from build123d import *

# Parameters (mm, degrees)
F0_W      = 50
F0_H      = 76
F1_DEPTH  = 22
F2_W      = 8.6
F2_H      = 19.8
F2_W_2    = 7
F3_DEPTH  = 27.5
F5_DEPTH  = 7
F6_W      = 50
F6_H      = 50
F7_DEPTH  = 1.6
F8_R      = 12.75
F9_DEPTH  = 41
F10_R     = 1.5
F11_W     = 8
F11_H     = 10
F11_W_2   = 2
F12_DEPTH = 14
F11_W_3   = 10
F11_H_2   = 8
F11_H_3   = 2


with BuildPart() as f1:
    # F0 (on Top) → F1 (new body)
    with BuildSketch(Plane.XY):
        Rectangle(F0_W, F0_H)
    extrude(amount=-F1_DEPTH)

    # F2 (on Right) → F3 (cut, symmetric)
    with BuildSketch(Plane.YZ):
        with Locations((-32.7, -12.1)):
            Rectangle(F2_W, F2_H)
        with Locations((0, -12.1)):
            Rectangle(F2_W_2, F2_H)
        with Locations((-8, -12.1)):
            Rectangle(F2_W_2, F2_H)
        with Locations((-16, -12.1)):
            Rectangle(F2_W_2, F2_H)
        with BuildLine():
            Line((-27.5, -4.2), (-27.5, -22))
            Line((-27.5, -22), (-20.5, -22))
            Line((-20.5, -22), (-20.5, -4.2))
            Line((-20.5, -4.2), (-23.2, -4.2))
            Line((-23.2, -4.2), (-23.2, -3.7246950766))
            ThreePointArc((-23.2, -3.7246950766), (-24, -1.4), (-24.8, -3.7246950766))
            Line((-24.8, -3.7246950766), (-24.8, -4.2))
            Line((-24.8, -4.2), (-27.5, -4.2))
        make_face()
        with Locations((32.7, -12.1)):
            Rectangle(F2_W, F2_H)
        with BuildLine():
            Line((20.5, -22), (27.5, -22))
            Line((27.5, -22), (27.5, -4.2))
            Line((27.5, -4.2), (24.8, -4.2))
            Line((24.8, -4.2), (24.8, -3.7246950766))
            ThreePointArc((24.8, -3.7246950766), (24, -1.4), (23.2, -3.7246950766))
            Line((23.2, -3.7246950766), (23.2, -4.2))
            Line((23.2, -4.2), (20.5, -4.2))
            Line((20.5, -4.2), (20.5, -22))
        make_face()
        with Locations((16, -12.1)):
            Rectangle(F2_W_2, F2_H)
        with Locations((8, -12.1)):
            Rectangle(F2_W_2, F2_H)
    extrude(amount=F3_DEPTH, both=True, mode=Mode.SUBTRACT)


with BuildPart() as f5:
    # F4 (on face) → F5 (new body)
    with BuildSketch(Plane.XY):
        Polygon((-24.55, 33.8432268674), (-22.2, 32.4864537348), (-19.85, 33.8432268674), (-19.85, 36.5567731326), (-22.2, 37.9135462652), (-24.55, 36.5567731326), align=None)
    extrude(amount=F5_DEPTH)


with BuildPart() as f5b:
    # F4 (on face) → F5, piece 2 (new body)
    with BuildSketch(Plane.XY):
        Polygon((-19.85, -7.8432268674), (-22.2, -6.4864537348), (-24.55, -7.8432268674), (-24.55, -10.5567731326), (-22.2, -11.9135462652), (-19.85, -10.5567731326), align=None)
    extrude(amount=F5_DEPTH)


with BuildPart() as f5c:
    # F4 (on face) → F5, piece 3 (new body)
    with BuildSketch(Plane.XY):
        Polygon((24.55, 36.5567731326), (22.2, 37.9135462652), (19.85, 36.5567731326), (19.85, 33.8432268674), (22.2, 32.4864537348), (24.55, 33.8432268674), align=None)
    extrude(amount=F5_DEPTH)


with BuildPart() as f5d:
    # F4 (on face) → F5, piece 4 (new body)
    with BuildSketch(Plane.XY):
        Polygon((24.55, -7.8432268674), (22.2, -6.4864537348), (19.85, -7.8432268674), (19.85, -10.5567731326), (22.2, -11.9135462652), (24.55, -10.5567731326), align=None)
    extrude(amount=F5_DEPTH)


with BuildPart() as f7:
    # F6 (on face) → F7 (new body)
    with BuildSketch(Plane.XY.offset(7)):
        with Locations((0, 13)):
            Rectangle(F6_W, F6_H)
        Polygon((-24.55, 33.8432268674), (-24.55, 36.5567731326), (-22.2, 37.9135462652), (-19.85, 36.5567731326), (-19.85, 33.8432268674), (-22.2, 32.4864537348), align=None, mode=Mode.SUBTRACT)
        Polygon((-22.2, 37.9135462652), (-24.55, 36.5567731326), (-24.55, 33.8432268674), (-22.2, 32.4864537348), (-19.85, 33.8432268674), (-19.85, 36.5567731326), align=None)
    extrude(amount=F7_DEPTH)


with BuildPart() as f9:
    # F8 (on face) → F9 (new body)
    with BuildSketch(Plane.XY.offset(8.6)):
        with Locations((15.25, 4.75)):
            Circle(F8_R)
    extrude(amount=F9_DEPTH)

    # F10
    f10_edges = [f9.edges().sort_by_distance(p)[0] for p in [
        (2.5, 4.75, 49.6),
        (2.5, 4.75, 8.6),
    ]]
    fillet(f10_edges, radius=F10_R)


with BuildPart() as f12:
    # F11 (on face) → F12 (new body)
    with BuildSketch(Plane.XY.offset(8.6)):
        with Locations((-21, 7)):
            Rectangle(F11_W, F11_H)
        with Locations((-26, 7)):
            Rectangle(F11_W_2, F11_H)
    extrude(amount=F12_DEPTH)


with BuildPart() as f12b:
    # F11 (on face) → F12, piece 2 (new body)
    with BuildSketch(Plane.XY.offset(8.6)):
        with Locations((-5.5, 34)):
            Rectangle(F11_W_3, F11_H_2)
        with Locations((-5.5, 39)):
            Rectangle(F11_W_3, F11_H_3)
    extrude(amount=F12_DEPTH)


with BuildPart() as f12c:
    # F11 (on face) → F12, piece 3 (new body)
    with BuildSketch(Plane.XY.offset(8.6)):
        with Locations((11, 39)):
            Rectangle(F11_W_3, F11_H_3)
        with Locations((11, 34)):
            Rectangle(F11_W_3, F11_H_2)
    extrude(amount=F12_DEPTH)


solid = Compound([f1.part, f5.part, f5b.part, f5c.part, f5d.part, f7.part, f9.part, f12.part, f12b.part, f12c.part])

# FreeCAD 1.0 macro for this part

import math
import FreeCAD as App
import Part
import Sketcher
from FreeCAD import Vector
Q = App.Units.Quantity


def edges_at(feature, points):
    """Names of the edges that pass closest to the given points."""
    edges = feature.Shape.Edges
    near = lambda p: min(range(len(edges)), key=lambda i: edges[i].distToShape(Part.Vertex(*p))[0])
    return sorted({f"Edge{near(p) + 1}" for p in points})


def add_polygon(sketch, points):
    """Adds a closed chain of lines whose ends are joined by coincident constraints."""
    first, n = sketch.GeometryCount, len(points)
    for a, b in zip(points, points[1:] + points[:1]):
        sketch.addGeometry(Part.LineSegment(App.Vector(*a, 0), App.Vector(*b, 0)), False)
    for i in range(n):
        sketch.addConstraint(Sketcher.Constraint("Coincident", first + i, 2, first + (i + 1) % n, 1))

doc = App.newDocument("Part")
body = doc.addObject("PartDesign::Body", "Body")

# Sketch on XY plane
sketch1 = body.newObject("Sketcher::SketchObject", "Sketch")
sketch1.AttachmentSupport = (doc.getObject("XY_Plane"), [""])
sketch1.MapMode = "FlatFace"
add_polygon(sketch1, [(-25, 38), (-25, -38), (25, -38), (25, 38)])  # lines 0-3
sketch1.addConstraint([
    Sketcher.Constraint("Vertical", 0),
    Sketcher.Constraint("Horizontal", 1),
    Sketcher.Constraint("Vertical", 2),
    Sketcher.Constraint("Horizontal", 3),
    Sketcher.Constraint("Symmetric", 0, 2, 2, 2, -1, 1),
    Sketcher.Constraint("DistanceX", 1, 1, 1, 2, Q("50 mm")),
    Sketcher.Constraint("DistanceY", 0, 2, 0, 1, Q("76 mm")),
])
pad1 = body.newObject("PartDesign::Pad", "Pad")
pad1.Profile = sketch1
pad1.Length = 22
pad1.Reversed = True

# Sketch on YZ plane
sketch2 = body.newObject("Sketcher::SketchObject", "Sketch001")
sketch2.AttachmentSupport = (doc.getObject("YZ_Plane"), [""])
sketch2.MapMode = "FlatFace"
add_polygon(sketch2, [(-37, -2.2), (-37, -22), (-28.4, -22), (-28.4, -2.2)])  # lines 0-3
add_polygon(sketch2, [(-3.5, -2.2), (-3.5, -22), (3.5, -22), (3.5, -2.2)])  # lines 4-7
add_polygon(sketch2, [(-11.5, -2.2), (-11.5, -22), (-4.5, -22), (-4.5, -2.2)])  # lines 8-11
add_polygon(sketch2, [(-19.5, -2.2), (-19.5, -22), (-12.5, -22), (-12.5, -2.2)])  # lines 12-15
sketch2.addGeometry(Part.LineSegment(Vector(-27.5, -4.2, 0), Vector(-27.5, -22, 0)), False)  # 16
sketch2.addGeometry(Part.LineSegment(Vector(-27.5, -22, 0), Vector(-20.5, -22, 0)), False)  # 17
sketch2.addGeometry(Part.LineSegment(Vector(-20.5, -22, 0), Vector(-20.5, -4.2, 0)), False)  # 18
sketch2.addGeometry(Part.LineSegment(Vector(-20.5, -4.2, 0), Vector(-23.2, -4.2, 0)), False)  # 19
sketch2.addGeometry(Part.LineSegment(Vector(-23.2, -4.2, 0), Vector(-23.2, -3.72, 0)), False)  # 20
sketch2.addGeometry(Part.ArcOfCircle(Part.Circle(Vector(-24, -2.7, 0), Vector(0, 0, 1), 1.3), math.radians(-52), math.radians(232)), False)  # 21
sketch2.addGeometry(Part.LineSegment(Vector(-24.8, -3.72, 0), Vector(-24.8, -4.2, 0)), False)  # 22
sketch2.addGeometry(Part.LineSegment(Vector(-24.8, -4.2, 0), Vector(-27.5, -4.2, 0)), False)  # 23
add_polygon(sketch2, [(28.4, -2.2), (28.4, -22), (37, -22), (37, -2.2)])  # lines 24-27
sketch2.addGeometry(Part.LineSegment(Vector(20.5, -22, 0), Vector(27.5, -22, 0)), False)  # 28
sketch2.addGeometry(Part.LineSegment(Vector(27.5, -22, 0), Vector(27.5, -4.2, 0)), False)  # 29
sketch2.addGeometry(Part.LineSegment(Vector(27.5, -4.2, 0), Vector(24.8, -4.2, 0)), False)  # 30
sketch2.addGeometry(Part.LineSegment(Vector(24.8, -4.2, 0), Vector(24.8, -3.72, 0)), False)  # 31
sketch2.addGeometry(Part.ArcOfCircle(Part.Circle(Vector(24, -2.7, 0), Vector(0, 0, 1), 1.3), math.radians(-52), math.radians(232)), False)  # 32
sketch2.addGeometry(Part.LineSegment(Vector(23.2, -3.72, 0), Vector(23.2, -4.2, 0)), False)  # 33
sketch2.addGeometry(Part.LineSegment(Vector(23.2, -4.2, 0), Vector(20.5, -4.2, 0)), False)  # 34
sketch2.addGeometry(Part.LineSegment(Vector(20.5, -4.2, 0), Vector(20.5, -22, 0)), False)  # 35
add_polygon(sketch2, [(12.5, -2.2), (12.5, -22), (19.5, -22), (19.5, -2.2)])  # lines 36-39
add_polygon(sketch2, [(4.5, -2.2), (4.5, -22), (11.5, -22), (11.5, -2.2)])  # lines 40-43
sketch2.addConstraint([
    Sketcher.Constraint("Coincident", 16, 2, 17, 1),
    Sketcher.Constraint("Coincident", 17, 2, 18, 1),
    Sketcher.Constraint("Coincident", 18, 2, 19, 1),
    Sketcher.Constraint("Coincident", 19, 2, 20, 1),
    Sketcher.Constraint("Coincident", 20, 2, 21, 1),
    Sketcher.Constraint("Coincident", 21, 2, 22, 1),
    Sketcher.Constraint("Coincident", 22, 2, 23, 1),
    Sketcher.Constraint("Coincident", 23, 2, 16, 1),
    Sketcher.Constraint("Coincident", 28, 2, 29, 1),
    Sketcher.Constraint("Coincident", 29, 2, 30, 1),
    Sketcher.Constraint("Coincident", 30, 2, 31, 1),
    Sketcher.Constraint("Coincident", 31, 2, 32, 1),
    Sketcher.Constraint("Coincident", 32, 2, 33, 1),
    Sketcher.Constraint("Coincident", 33, 2, 34, 1),
    Sketcher.Constraint("Coincident", 34, 2, 35, 1),
    Sketcher.Constraint("Coincident", 35, 2, 28, 1),
    Sketcher.Constraint("Vertical", 0),
    Sketcher.Constraint("Horizontal", 1),
    Sketcher.Constraint("Vertical", 2),
    Sketcher.Constraint("Horizontal", 3),
    Sketcher.Constraint("Vertical", 4),
    Sketcher.Constraint("Horizontal", 5),
    Sketcher.Constraint("Vertical", 6),
    Sketcher.Constraint("Horizontal", 7),
    Sketcher.Constraint("Vertical", 8),
    Sketcher.Constraint("Horizontal", 9),
    Sketcher.Constraint("Vertical", 10),
    Sketcher.Constraint("Horizontal", 11),
    Sketcher.Constraint("Vertical", 12),
    Sketcher.Constraint("Horizontal", 13),
    Sketcher.Constraint("Vertical", 14),
    Sketcher.Constraint("Horizontal", 15),
    Sketcher.Constraint("Vertical", 16),
    Sketcher.Constraint("Horizontal", 17),
    Sketcher.Constraint("Vertical", 18),
    Sketcher.Constraint("Horizontal", 19),
    Sketcher.Constraint("Vertical", 20),
    Sketcher.Constraint("Vertical", 22),
    Sketcher.Constraint("Horizontal", 23),
    Sketcher.Constraint("Vertical", 24),
    Sketcher.Constraint("Horizontal", 25),
    Sketcher.Constraint("Vertical", 26),
    Sketcher.Constraint("Horizontal", 27),
    Sketcher.Constraint("Horizontal", 28),
    Sketcher.Constraint("Vertical", 29),
    Sketcher.Constraint("Horizontal", 30),
    Sketcher.Constraint("Vertical", 31),
    Sketcher.Constraint("Vertical", 33),
    Sketcher.Constraint("Horizontal", 34),
    Sketcher.Constraint("Vertical", 35),
    Sketcher.Constraint("Vertical", 36),
    Sketcher.Constraint("Horizontal", 37),
    Sketcher.Constraint("Vertical", 38),
    Sketcher.Constraint("Horizontal", 39),
    Sketcher.Constraint("Vertical", 40),
    Sketcher.Constraint("Horizontal", 41),
    Sketcher.Constraint("Vertical", 42),
    Sketcher.Constraint("Horizontal", 43),
    Sketcher.Constraint("Equal", 21, 32),
    Sketcher.Constraint("Symmetric", 21, 3, 32, 3, -2),
    Sketcher.Constraint("Symmetric", 1, 2, 24, 2, -2),
    Sketcher.Constraint("Symmetric", 3, 2, 26, 2, -2),
    Sketcher.Constraint("Symmetric", 16, 2, 28, 2, -2),
    Sketcher.Constraint("Symmetric", 22, 2, 30, 2, -2),
    Sketcher.Constraint("Symmetric", 19, 2, 33, 2, -2),
    Sketcher.Constraint("Symmetric", 13, 2, 36, 2, -2),
    Sketcher.Constraint("Symmetric", 15, 2, 38, 2, -2),
    Sketcher.Constraint("Symmetric", 9, 2, 40, 2, -2),
    Sketcher.Constraint("Symmetric", 11, 2, 42, 2, -2),
    Sketcher.Constraint("Horizontal", 1, 2, 4, 2),
    Sketcher.Constraint("Horizontal", 3, 2, 6, 2),
    Sketcher.Constraint("Horizontal", 5, 2, 8, 2),
    Sketcher.Constraint("Horizontal", 7, 2, 10, 2),
    Sketcher.Constraint("Horizontal", 9, 2, 12, 2),
    Sketcher.Constraint("Horizontal", 11, 2, 14, 2),
    Sketcher.Constraint("Horizontal", 13, 2, 16, 2),
    Sketcher.Constraint("Horizontal", 20, 2, 21, 2),
    Sketcher.Constraint("Horizontal", 19, 2, 22, 2),
    Sketcher.Constraint("Equal", 7, 9),
    Sketcher.Constraint("Equal", 11, 13),
    Sketcher.Constraint("Equal", 15, 17),
    Sketcher.Constraint("Equal", 19, 23),
    Sketcher.Constraint("Equal", 17, 28),
    Sketcher.Constraint("Radius", 21, Q("1.3 mm")),
    Sketcher.Constraint("DistanceX", 5, 1, 5, 2, Q("7 mm")),
    Sketcher.Constraint("DistanceX", 1, 1, 1, 2, Q("8.6 mm")),
    Sketcher.Constraint("DistanceX", 19, 2, 19, 1, Q("2.7 mm")),
    Sketcher.Constraint("DistanceY", 0, 2, 0, 1, Q("19.8 mm")),
    Sketcher.Constraint("DistanceY", 16, 2, 16, 1, Q("17.8 mm")),
    Sketcher.Constraint("DistanceX", 21, 3, -1, 1, Q("24 mm")),
    Sketcher.Constraint("DistanceX", 0, 2, -1, 1, Q("37 mm")),
    Sketcher.Constraint("DistanceY", 0, 2, -1, 1, Q("22 mm")),
    Sketcher.Constraint("DistanceX", 8, 2, 4, 2, Q("8 mm")),
    Sketcher.Constraint("DistanceX", 12, 2, 8, 2, Q("8 mm")),
    Sketcher.Constraint("DistanceX", 16, 2, 12, 2, Q("8 mm")),
    Sketcher.Constraint("DistanceY", 21, 3, -1, 1, Q("2.7 mm")),
])
pocket1 = body.newObject("PartDesign::Pocket", "Pocket")
pocket1.Profile = sketch2
pocket1.Length = 55
pocket1.Midplane = True
body2 = doc.addObject("PartDesign::Body", "Body001")

# Sketch on XY plane
sketch3 = body2.newObject("Sketcher::SketchObject", "Sketch002")
sketch3.AttachmentSupport = (doc.getObject("XY_Plane001"), [""])
sketch3.MapMode = "FlatFace"
add_polygon(sketch3, [(-24.6, 33.8), (-22.2, 32.5), (-19.9, 33.8), (-19.9, 36.6), (-22.2, 37.9), (-24.6, 36.6)])  # lines 0-5
sketch3.addConstraint([
    Sketcher.Constraint("Vertical", 2),
    Sketcher.Constraint("Vertical", 5),
    Sketcher.Constraint("Parallel", 0, 3),
    Sketcher.Constraint("Parallel", 1, 4),
    Sketcher.Constraint("Horizontal", 2, 2, 4, 2),
    Sketcher.Constraint("Horizontal", 1, 2, 5, 2),
    Sketcher.Constraint("Vertical", 0, 2, 3, 2),
    Sketcher.Constraint("Angle", 0, Q("-30 deg")),
    Sketcher.Constraint("DistanceX", 0, 2, -1, 1, Q("22.2 mm")),
    Sketcher.Constraint("DistanceX", 4, 2, 2, 2, Q("4.7 mm")),
    Sketcher.Constraint("DistanceY", 2, 1, 2, 2, Q("2.713546 mm")),
    Sketcher.Constraint("DistanceY", -1, 1, 0, 2, Q("32.486454 mm")),
])
pad2 = body2.newObject("PartDesign::Pad", "Pad001")
pad2.Profile = sketch3
pad2.Length = 7
body3 = doc.addObject("PartDesign::Body", "Body002")

# Sketch on XY plane
sketch4 = body3.newObject("Sketcher::SketchObject", "Sketch003")
sketch4.AttachmentSupport = (doc.getObject("XY_Plane002"), [""])
sketch4.MapMode = "FlatFace"
add_polygon(sketch4, [(-19.9, -7.8), (-22.2, -6.5), (-24.6, -7.8), (-24.6, -10.6), (-22.2, -11.9), (-19.9, -10.6)])  # lines 0-5
sketch4.addConstraint([
    Sketcher.Constraint("Vertical", 2),
    Sketcher.Constraint("Vertical", 5),
    Sketcher.Constraint("Parallel", 0, 3),
    Sketcher.Constraint("Parallel", 1, 4),
    Sketcher.Constraint("Horizontal", 2, 2, 4, 2),
    Sketcher.Constraint("Horizontal", 1, 2, 5, 2),
    Sketcher.Constraint("Vertical", 0, 2, 3, 2),
    Sketcher.Constraint("Angle", 0, Q("150 deg")),
    Sketcher.Constraint("DistanceX", 0, 2, -1, 1, Q("22.2 mm")),
    Sketcher.Constraint("DistanceX", 2, 2, 4, 2, Q("4.7 mm")),
    Sketcher.Constraint("DistanceY", 2, 2, 2, 1, Q("2.713546 mm")),
    Sketcher.Constraint("DistanceY", 0, 2, -1, 1, Q("6.486454 mm")),
])
pad3 = body3.newObject("PartDesign::Pad", "Pad002")
pad3.Profile = sketch4
pad3.Length = 7
body4 = doc.addObject("PartDesign::Body", "Body003")

# Sketch on XY plane
sketch5 = body4.newObject("Sketcher::SketchObject", "Sketch004")
sketch5.AttachmentSupport = (doc.getObject("XY_Plane003"), [""])
sketch5.MapMode = "FlatFace"
add_polygon(sketch5, [(24.6, 36.6), (22.2, 37.9), (19.9, 36.6), (19.9, 33.8), (22.2, 32.5), (24.6, 33.8)])  # lines 0-5
sketch5.addConstraint([
    Sketcher.Constraint("Vertical", 2),
    Sketcher.Constraint("Vertical", 5),
    Sketcher.Constraint("Parallel", 0, 3),
    Sketcher.Constraint("Parallel", 1, 4),
    Sketcher.Constraint("Horizontal", 2, 2, 4, 2),
    Sketcher.Constraint("Horizontal", 1, 2, 5, 2),
    Sketcher.Constraint("Vertical", 0, 2, 3, 2),
    Sketcher.Constraint("Angle", 0, Q("150 deg")),
    Sketcher.Constraint("DistanceX", -1, 1, 0, 2, Q("22.2 mm")),
    Sketcher.Constraint("DistanceX", 2, 2, 4, 2, Q("4.7 mm")),
    Sketcher.Constraint("DistanceY", 2, 2, 2, 1, Q("2.713546 mm")),
    Sketcher.Constraint("DistanceY", -1, 1, 0, 2, Q("37.913546 mm")),
])
pad4 = body4.newObject("PartDesign::Pad", "Pad003")
pad4.Profile = sketch5
pad4.Length = 7
body5 = doc.addObject("PartDesign::Body", "Body004")

# Sketch on XY plane
sketch6 = body5.newObject("Sketcher::SketchObject", "Sketch005")
sketch6.AttachmentSupport = (doc.getObject("XY_Plane004"), [""])
sketch6.MapMode = "FlatFace"
add_polygon(sketch6, [(24.6, -7.8), (22.2, -6.5), (19.9, -7.8), (19.9, -10.6), (22.2, -11.9), (24.6, -10.6)])  # lines 0-5
sketch6.addConstraint([
    Sketcher.Constraint("Vertical", 2),
    Sketcher.Constraint("Vertical", 5),
    Sketcher.Constraint("Parallel", 0, 3),
    Sketcher.Constraint("Parallel", 1, 4),
    Sketcher.Constraint("Horizontal", 2, 2, 4, 2),
    Sketcher.Constraint("Horizontal", 1, 2, 5, 2),
    Sketcher.Constraint("Vertical", 0, 2, 3, 2),
    Sketcher.Constraint("Angle", 0, Q("150 deg")),
    Sketcher.Constraint("DistanceX", -1, 1, 0, 2, Q("22.2 mm")),
    Sketcher.Constraint("DistanceX", 2, 2, 4, 2, Q("4.7 mm")),
    Sketcher.Constraint("DistanceY", 2, 2, 2, 1, Q("2.713546 mm")),
    Sketcher.Constraint("DistanceY", 0, 2, -1, 1, Q("6.486454 mm")),
])
pad5 = body5.newObject("PartDesign::Pad", "Pad004")
pad5.Profile = sketch6
pad5.Length = 7
body6 = doc.addObject("PartDesign::Body", "Body005")

# Sketch on XY plane
sketch7 = body6.newObject("Sketcher::SketchObject", "Sketch006")
sketch7.AttachmentSupport = (doc.getObject("XY_Plane005"), [""])
sketch7.MapMode = "FlatFace"
sketch7.AttachmentOffset = App.Placement(Vector(0, 0, 7), App.Rotation())
add_polygon(sketch7, [(-25, 38), (-25, -12), (25, -12), (25, 38)])  # lines 0-3
sketch7.addConstraint([
    Sketcher.Constraint("Vertical", 0),
    Sketcher.Constraint("Horizontal", 1),
    Sketcher.Constraint("Vertical", 2),
    Sketcher.Constraint("Horizontal", 3),
    Sketcher.Constraint("Equal", 3, 0),
    Sketcher.Constraint("DistanceX", 1, 1, 1, 2, Q("50 mm")),
    Sketcher.Constraint("DistanceX", 0, 2, -1, 1, Q("25 mm")),
    Sketcher.Constraint("DistanceY", 0, 2, -1, 1, Q("12 mm")),
])
pad6 = body6.newObject("PartDesign::Pad", "Pad005")
pad6.Profile = sketch7
pad6.Length = 1.6
body7 = doc.addObject("PartDesign::Body", "Body006")

# Sketch on XY plane
sketch8 = body7.newObject("Sketcher::SketchObject", "Sketch007")
sketch8.AttachmentSupport = (doc.getObject("XY_Plane006"), [""])
sketch8.MapMode = "FlatFace"
sketch8.AttachmentOffset = App.Placement(Vector(0, 0, 8.6), App.Rotation())
sketch8.addGeometry(Part.Circle(Vector(15, 5, 0), Vector(0, 0, 1), 13), False)
sketch8.addConstraint([
    Sketcher.Constraint("Diameter", 0, Q("25.5 mm")),
    Sketcher.Constraint("DistanceX", -1, 1, 0, 3, Q("15.25 mm")),
    Sketcher.Constraint("DistanceY", -1, 1, 0, 3, Q("4.75 mm")),
])
pad7 = body7.newObject("PartDesign::Pad", "Pad006")
pad7.Profile = sketch8
pad7.Length = 41
doc.recompute()

fillet = body7.newObject("PartDesign::Fillet", "Fillet")
fillet.Base = (pad7, edges_at(pad7, [(2.5, 4.75, 49.6), (2.5, 4.75, 8.6)]))
fillet.Radius = 1.5
body8 = doc.addObject("PartDesign::Body", "Body007")

# Sketch on XY plane
sketch9 = body8.newObject("Sketcher::SketchObject", "Sketch008")
sketch9.AttachmentSupport = (doc.getObject("XY_Plane007"), [""])
sketch9.MapMode = "FlatFace"
sketch9.AttachmentOffset = App.Placement(Vector(0, 0, 8.6), App.Rotation())
add_polygon(sketch9, [(-17, 2), (-17, 12), (-27, 12), (-27, 2)])  # lines 0-3
sketch9.addConstraint([
    Sketcher.Constraint("Vertical", 0),
    Sketcher.Constraint("Horizontal", 1),
    Sketcher.Constraint("Vertical", 2),
    Sketcher.Constraint("Horizontal", 3),
    Sketcher.Constraint("Equal", 3, 0),
    Sketcher.Constraint("DistanceX", 1, 2, 1, 1, Q("10 mm")),
    Sketcher.Constraint("DistanceX", 0, 2, -1, 1, Q("17 mm")),
    Sketcher.Constraint("DistanceY", -1, 1, 0, 2, Q("12 mm")),
])
pad8 = body8.newObject("PartDesign::Pad", "Pad007")
pad8.Profile = sketch9
pad8.Length = 14
body9 = doc.addObject("PartDesign::Body", "Body008")

# Sketch on XY plane
sketch10 = body9.newObject("Sketcher::SketchObject", "Sketch009")
sketch10.AttachmentSupport = (doc.getObject("XY_Plane008"), [""])
sketch10.MapMode = "FlatFace"
sketch10.AttachmentOffset = App.Placement(Vector(0, 0, 8.6), App.Rotation())
add_polygon(sketch10, [(-10, 30), (0, 30), (0, 40), (-10, 40)])  # lines 0-3
sketch10.addConstraint([
    Sketcher.Constraint("Horizontal", 0),
    Sketcher.Constraint("Vertical", 1),
    Sketcher.Constraint("Horizontal", 2),
    Sketcher.Constraint("Vertical", 3),
    Sketcher.Constraint("Equal", 2, 1),
    Sketcher.Constraint("DistanceX", 0, 1, 0, 2, Q("10 mm")),
    Sketcher.Constraint("DistanceY", -1, 1, 0, 2, Q("30 mm")),
    Sketcher.Constraint("DistanceX", 0, 2, -1, 1, Q("0.5 mm")),
])
pad9 = body9.newObject("PartDesign::Pad", "Pad008")
pad9.Profile = sketch10
pad9.Length = 14
body10 = doc.addObject("PartDesign::Body", "Body009")

# Sketch on XY plane
sketch11 = body10.newObject("Sketcher::SketchObject", "Sketch010")
sketch11.AttachmentSupport = (doc.getObject("XY_Plane009"), [""])
sketch11.MapMode = "FlatFace"
sketch11.AttachmentOffset = App.Placement(Vector(0, 0, 8.6), App.Rotation())
add_polygon(sketch11, [(6, 40), (6, 30), (16, 30), (16, 40)])  # lines 0-3
sketch11.addConstraint([
    Sketcher.Constraint("Vertical", 0),
    Sketcher.Constraint("Horizontal", 1),
    Sketcher.Constraint("Vertical", 2),
    Sketcher.Constraint("Horizontal", 3),
    Sketcher.Constraint("Equal", 3, 0),
    Sketcher.Constraint("DistanceX", 1, 1, 1, 2, Q("10 mm")),
    Sketcher.Constraint("DistanceX", -1, 1, 0, 2, Q("6 mm")),
    Sketcher.Constraint("DistanceY", -1, 1, 0, 2, Q("30 mm")),
])
pad10 = body10.newObject("PartDesign::Pad", "Pad009")
pad10.Profile = sketch11
pad10.Length = 14

doc.recompute()
